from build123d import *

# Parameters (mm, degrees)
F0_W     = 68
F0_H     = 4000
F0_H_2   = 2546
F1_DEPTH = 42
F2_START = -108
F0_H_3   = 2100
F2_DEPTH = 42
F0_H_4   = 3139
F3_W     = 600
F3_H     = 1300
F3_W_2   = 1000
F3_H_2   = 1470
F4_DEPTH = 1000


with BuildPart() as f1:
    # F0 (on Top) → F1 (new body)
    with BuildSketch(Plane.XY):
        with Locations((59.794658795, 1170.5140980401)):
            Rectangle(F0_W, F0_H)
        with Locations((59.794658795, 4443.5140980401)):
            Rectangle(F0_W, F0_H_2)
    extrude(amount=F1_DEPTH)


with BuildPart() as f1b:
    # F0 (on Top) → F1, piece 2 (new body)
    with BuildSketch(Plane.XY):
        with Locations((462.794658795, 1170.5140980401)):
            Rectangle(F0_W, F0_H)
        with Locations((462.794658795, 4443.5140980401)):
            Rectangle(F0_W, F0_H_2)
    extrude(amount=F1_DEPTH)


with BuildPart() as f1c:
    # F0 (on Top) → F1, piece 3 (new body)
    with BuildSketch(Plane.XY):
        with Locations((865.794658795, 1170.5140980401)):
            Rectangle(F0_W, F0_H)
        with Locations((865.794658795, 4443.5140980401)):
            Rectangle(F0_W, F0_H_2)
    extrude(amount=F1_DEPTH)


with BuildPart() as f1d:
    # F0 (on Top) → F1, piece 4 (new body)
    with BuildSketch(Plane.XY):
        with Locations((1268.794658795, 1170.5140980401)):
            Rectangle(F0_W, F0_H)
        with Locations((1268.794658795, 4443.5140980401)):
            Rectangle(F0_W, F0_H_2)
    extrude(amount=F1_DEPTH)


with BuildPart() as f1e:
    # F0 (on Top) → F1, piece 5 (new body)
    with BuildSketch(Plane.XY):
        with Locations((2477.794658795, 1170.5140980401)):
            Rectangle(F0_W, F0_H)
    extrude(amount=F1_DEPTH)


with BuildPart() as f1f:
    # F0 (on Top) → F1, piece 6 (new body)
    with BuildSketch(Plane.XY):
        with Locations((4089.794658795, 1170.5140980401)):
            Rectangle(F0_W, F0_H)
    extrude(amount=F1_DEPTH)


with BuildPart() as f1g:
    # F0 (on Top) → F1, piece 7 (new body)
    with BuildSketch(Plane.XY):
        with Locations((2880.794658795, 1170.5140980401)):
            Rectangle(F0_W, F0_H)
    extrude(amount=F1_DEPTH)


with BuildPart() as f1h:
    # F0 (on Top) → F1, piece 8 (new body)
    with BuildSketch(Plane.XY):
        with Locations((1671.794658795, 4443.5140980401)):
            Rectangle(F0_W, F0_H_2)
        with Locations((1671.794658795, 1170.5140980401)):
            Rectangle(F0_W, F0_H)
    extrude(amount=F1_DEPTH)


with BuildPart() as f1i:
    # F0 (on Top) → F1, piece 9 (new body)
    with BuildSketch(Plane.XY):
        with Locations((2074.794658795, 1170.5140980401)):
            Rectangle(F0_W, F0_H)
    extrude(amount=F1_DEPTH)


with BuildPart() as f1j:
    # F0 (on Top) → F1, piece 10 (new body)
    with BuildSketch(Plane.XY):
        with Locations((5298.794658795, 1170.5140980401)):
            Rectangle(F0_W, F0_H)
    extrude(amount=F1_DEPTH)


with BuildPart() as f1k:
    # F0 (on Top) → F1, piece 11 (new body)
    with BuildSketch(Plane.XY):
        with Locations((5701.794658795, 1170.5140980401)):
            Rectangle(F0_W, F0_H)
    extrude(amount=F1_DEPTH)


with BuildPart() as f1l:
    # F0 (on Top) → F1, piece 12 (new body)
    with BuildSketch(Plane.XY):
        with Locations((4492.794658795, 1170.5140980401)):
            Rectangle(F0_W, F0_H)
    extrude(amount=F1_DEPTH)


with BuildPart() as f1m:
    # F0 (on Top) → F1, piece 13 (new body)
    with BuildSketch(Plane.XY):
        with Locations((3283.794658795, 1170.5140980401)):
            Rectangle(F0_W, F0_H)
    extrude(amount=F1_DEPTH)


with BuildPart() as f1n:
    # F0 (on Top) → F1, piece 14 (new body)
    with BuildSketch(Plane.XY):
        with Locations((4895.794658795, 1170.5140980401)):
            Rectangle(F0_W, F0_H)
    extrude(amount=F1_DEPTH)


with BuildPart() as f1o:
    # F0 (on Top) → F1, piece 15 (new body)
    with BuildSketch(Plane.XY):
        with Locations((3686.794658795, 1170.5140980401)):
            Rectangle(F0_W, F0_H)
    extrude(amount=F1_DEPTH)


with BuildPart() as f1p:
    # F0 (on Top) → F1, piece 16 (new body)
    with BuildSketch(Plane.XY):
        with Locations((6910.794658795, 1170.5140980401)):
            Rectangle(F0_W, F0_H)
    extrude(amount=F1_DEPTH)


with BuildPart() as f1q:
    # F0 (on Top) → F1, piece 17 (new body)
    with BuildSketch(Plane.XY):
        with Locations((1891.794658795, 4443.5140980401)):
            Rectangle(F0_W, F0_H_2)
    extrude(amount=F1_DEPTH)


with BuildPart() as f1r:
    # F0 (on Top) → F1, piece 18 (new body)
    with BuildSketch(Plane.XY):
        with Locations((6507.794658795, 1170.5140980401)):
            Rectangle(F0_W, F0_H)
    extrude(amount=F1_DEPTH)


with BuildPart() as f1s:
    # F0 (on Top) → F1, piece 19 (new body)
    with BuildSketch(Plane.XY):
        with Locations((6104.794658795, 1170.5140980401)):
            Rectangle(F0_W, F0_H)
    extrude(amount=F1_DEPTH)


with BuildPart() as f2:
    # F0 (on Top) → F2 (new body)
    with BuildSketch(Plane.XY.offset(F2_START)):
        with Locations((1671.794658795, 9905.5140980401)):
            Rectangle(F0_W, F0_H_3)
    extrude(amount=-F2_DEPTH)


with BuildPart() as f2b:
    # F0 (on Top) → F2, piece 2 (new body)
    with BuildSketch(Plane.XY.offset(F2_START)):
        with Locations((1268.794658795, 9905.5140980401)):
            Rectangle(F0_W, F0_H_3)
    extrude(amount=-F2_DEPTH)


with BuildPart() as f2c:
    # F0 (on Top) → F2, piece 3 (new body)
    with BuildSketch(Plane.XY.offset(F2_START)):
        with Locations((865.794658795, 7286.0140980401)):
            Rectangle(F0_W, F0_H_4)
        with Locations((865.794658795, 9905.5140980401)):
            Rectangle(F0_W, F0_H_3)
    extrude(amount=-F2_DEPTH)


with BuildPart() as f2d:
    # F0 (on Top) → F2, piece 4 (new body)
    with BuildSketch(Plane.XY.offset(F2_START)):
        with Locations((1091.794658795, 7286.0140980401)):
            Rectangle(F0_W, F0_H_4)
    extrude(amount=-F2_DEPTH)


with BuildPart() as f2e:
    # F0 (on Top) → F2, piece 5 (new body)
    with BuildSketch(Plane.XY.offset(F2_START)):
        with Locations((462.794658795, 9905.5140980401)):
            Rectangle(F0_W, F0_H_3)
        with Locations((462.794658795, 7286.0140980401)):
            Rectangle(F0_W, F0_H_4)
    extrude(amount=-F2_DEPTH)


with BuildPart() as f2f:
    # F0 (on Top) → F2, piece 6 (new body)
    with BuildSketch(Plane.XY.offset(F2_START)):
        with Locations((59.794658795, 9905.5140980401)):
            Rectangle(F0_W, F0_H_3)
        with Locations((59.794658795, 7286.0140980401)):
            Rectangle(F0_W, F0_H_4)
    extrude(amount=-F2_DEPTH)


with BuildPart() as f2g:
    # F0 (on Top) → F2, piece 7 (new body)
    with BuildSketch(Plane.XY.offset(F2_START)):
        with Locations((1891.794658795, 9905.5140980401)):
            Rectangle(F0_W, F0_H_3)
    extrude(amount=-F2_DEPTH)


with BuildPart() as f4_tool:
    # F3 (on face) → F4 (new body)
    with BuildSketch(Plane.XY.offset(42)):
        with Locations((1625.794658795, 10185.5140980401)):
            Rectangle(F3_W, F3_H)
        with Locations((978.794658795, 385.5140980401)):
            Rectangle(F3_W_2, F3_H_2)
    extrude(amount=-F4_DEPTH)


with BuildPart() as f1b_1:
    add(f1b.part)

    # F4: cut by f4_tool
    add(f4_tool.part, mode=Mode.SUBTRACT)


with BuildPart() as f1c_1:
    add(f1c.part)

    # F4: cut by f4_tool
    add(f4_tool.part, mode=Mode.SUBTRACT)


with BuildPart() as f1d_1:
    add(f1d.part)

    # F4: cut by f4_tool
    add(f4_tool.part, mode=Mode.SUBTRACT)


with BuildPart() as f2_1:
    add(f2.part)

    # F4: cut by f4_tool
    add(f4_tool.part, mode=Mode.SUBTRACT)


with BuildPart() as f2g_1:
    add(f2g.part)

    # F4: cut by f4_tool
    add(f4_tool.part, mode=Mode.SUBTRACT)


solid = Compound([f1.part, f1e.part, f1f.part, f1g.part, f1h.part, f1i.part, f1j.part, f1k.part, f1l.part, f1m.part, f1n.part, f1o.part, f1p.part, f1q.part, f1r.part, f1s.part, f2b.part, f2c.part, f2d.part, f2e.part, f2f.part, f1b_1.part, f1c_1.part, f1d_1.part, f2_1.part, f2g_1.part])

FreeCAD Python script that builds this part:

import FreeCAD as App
import Part
import Sketcher
Q = App.Units.Quantity


def add_polygon(sketch, points):
    """Adds a closed chain of lines whose ends are joined by coincident constraints."""
    first, n = sketch.GeometryCount, len(points)
    for a, b in zip(points, points[1:] + points[:1]):
        sketch.addGeometry(Part.LineSegment(App.Vector(*a, 0), App.Vector(*b, 0)), False)
    for i in range(n):
        sketch.addConstraint(Sketcher.Constraint("Coincident", first + i, 2, first + (i + 1) % n, 1))

doc = App.newDocument("Part")
body = doc.addObject("PartDesign::Body", "Body")

# Sketch on XY plane
sketch1 = doc.addObject("Sketcher::SketchObject", "Sketch")
body.addObject(sketch1)
sketch1.AttachmentSupport = (doc.XY_Plane, [""])
sketch1.MapMode = "FlatFace"
add_polygon(sketch1, [(26, -829), (94, -829), (94, 5717), (26, 5717)])  # lines 0-3
sketch1.addConstraint(Sketcher.Constraint("Horizontal", 0))
sketch1.addConstraint(Sketcher.Constraint("Vertical", 1))
sketch1.addConstraint(Sketcher.Constraint("Horizontal", 2))
sketch1.addConstraint(Sketcher.Constraint("Vertical", 3))
sketch1.addConstraint(Sketcher.Constraint("DistanceX", 0, 1, 0, 2, Q("68 mm")))
sketch1.addConstraint(Sketcher.Constraint("DistanceY", 1, 1, 1, 2, Q("6546 mm")))
sketch1.addConstraint(Sketcher.Constraint("DistanceY", 0, 2, -1, 1, Q("829.485902 mm")))
sketch1.addConstraint(Sketcher.Constraint("DistanceX", -1, 1, 0, 2, Q("93.794659 mm")))
pad1 = doc.addObject("PartDesign::Pad", "Pad")
body.addObject(pad1)
pad1.Profile = sketch1
pad1.Length = 42
body2 = doc.addObject("PartDesign::Body", "Body001")

# Sketch on XY plane
sketch2 = doc.addObject("Sketcher::SketchObject", "Sketch001")
body2.addObject(sketch2)
sketch2.AttachmentSupport = (doc.getObject("XY_Plane001"), [""])
sketch2.MapMode = "FlatFace"
add_polygon(sketch2, [(429, -829), (497, -829), (497, 5717), (429, 5717)])  # lines 0-3
sketch2.addConstraint(Sketcher.Constraint("Horizontal", 0))
sketch2.addConstraint(Sketcher.Constraint("Vertical", 1))
sketch2.addConstraint(Sketcher.Constraint("Horizontal", 2))
sketch2.addConstraint(Sketcher.Constraint("Vertical", 3))
sketch2.addConstraint(Sketcher.Constraint("DistanceX", 0, 1, 0, 2, Q("68 mm")))
sketch2.addConstraint(Sketcher.Constraint("DistanceY", 1, 1, 1, 2, Q("6546 mm")))
sketch2.addConstraint(Sketcher.Constraint("DistanceY", 0, 2, -1, 1, Q("829.485902 mm")))
sketch2.addConstraint(Sketcher.Constraint("DistanceX", -1, 1, 0, 2, Q("496.794659 mm")))
pad2 = doc.addObject("PartDesign::Pad", "Pad001")
body2.addObject(pad2)
pad2.Profile = sketch2
pad2.Length = 42
body3 = doc.addObject("PartDesign::Body", "Body002")

# Sketch on XY plane
sketch3 = doc.addObject("Sketcher::SketchObject", "Sketch002")
body3.addObject(sketch3)
sketch3.AttachmentSupport = (doc.getObject("XY_Plane002"), [""])
sketch3.MapMode = "FlatFace"
add_polygon(sketch3, [(832, -829), (900, -829), (900, 5717), (832, 5717)])  # lines 0-3
sketch3.addConstraint(Sketcher.Constraint("Horizontal", 0))
sketch3.addConstraint(Sketcher.Constraint("Vertical", 1))
sketch3.addConstraint(Sketcher.Constraint("Horizontal", 2))
sketch3.addConstraint(Sketcher.Constraint("Vertical", 3))
sketch3.addConstraint(Sketcher.Constraint("DistanceX", 0, 1, 0, 2, Q("68 mm")))
sketch3.addConstraint(Sketcher.Constraint("DistanceY", 1, 1, 1, 2, Q("6546 mm")))
sketch3.addConstraint(Sketcher.Constraint("DistanceY", 0, 2, -1, 1, Q("829.485902 mm")))
sketch3.addConstraint(Sketcher.Constraint("DistanceX", -1, 1, 0, 2, Q("899.794659 mm")))
pad3 = doc.addObject("PartDesign::Pad", "Pad002")
body3.addObject(pad3)
pad3.Profile = sketch3
pad3.Length = 42
body4 = doc.addObject("PartDesign::Body", "Body003")

# Sketch on XY plane
sketch4 = doc.addObject("Sketcher::SketchObject", "Sketch003")
body4.addObject(sketch4)
sketch4.AttachmentSupport = (doc.getObject("XY_Plane003"), [""])
sketch4.MapMode = "FlatFace"
add_polygon(sketch4, [(1235, -829), (1303, -829), (1303, 5717), (1235, 5717)])  # lines 0-3
sketch4.addConstraint(Sketcher.Constraint("Horizontal", 0))
sketch4.addConstraint(Sketcher.Constraint("Vertical", 1))
sketch4.addConstraint(Sketcher.Constraint("Horizontal", 2))
sketch4.addConstraint(Sketcher.Constraint("Vertical", 3))
sketch4.addConstraint(Sketcher.Constraint("DistanceX", 0, 1, 0, 2, Q("68 mm")))
sketch4.addConstraint(Sketcher.Constraint("DistanceY", 1, 1, 1, 2, Q("6546 mm")))
sketch4.addConstraint(Sketcher.Constraint("DistanceY", 0, 2, -1, 1, Q("829.485902 mm")))
sketch4.addConstraint(Sketcher.Constraint("DistanceX", -1, 1, 0, 2, Q("1302.794659 mm")))
pad4 = doc.addObject("PartDesign::Pad", "Pad003")
body4.addObject(pad4)
pad4.Profile = sketch4
pad4.Length = 42
body5 = doc.addObject("PartDesign::Body", "Body004")

# Sketch on XY plane
sketch5 = doc.addObject("Sketcher::SketchObject", "Sketch004")
body5.addObject(sketch5)
sketch5.AttachmentSupport = (doc.getObject("XY_Plane004"), [""])
sketch5.MapMode = "FlatFace"
add_polygon(sketch5, [(2444, 3171), (2444, -829), (2512, -829), (2512, 3171)])  # lines 0-3
sketch5.addConstraint(Sketcher.Constraint("Vertical", 0))
sketch5.addConstraint(Sketcher.Constraint("Horizontal", 1))
sketch5.addConstraint(Sketcher.Constraint("Vertical", 2))
sketch5.addConstraint(Sketcher.Constraint("Horizontal", 3))
sketch5.addConstraint(Sketcher.Constraint("DistanceX", 1, 1, 1, 2, Q("68 mm")))
sketch5.addConstraint(Sketcher.Constraint("DistanceY", 0, 2, 0, 1, Q("4000 mm")))
sketch5.addConstraint(Sketcher.Constraint("DistanceY", 0, 2, -1, 1, Q("829.485902 mm")))
sketch5.addConstraint(Sketcher.Constraint("DistanceX", -1, 1, 0, 2, Q("2443.794659 mm")))
pad5 = doc.addObject("PartDesign::Pad", "Pad004")
body5.addObject(pad5)
pad5.Profile = sketch5
pad5.Length = 42
body6 = doc.addObject("PartDesign::Body", "Body005")

# Sketch on XY plane
sketch6 = doc.addObject("Sketcher::SketchObject", "Sketch005")
body6.addObject(sketch6)
sketch6.AttachmentSupport = (doc.getObject("XY_Plane005"), [""])
sketch6.MapMode = "FlatFace"
add_polygon(sketch6, [(4056, 3171), (4056, -829), (4124, -829), (4124, 3171)])  # lines 0-3
sketch6.addConstraint(Sketcher.Constraint("Vertical", 0))
sketch6.addConstraint(Sketcher.Constraint("Horizontal", 1))
sketch6.addConstraint(Sketcher.Constraint("Vertical", 2))
sketch6.addConstraint(Sketcher.Constraint("Horizontal", 3))
sketch6.addConstraint(Sketcher.Constraint("DistanceX", 1, 1, 1, 2, Q("68 mm")))
sketch6.addConstraint(Sketcher.Constraint("DistanceY", 0, 2, 0, 1, Q("4000 mm")))
sketch6.addConstraint(Sketcher.Constraint("DistanceY", 0, 2, -1, 1, Q("829.485902 mm")))
sketch6.addConstraint(Sketcher.Constraint("DistanceX", -1, 1, 0, 2, Q("4055.794659 mm")))
pad6 = doc.addObject("PartDesign::Pad", "Pad005")
body6.addObject(pad6)
pad6.Profile = sketch6
pad6.Length = 42
body7 = doc.addObject("PartDesign::Body", "Body006")

# Sketch on XY plane
sketch7 = doc.addObject("Sketcher::SketchObject", "Sketch006")
body7.addObject(sketch7)
sketch7.AttachmentSupport = (doc.getObject("XY_Plane006"), [""])
sketch7.MapMode = "FlatFace"
add_polygon(sketch7, [(2847, 3171), (2847, -829), (2915, -829), (2915, 3171)])  # lines 0-3
sketch7.addConstraint(Sketcher.Constraint("Vertical", 0))
sketch7.addConstraint(Sketcher.Constraint("Horizontal", 1))
sketch7.addConstraint(Sketcher.Constraint("Vertical", 2))
sketch7.addConstraint(Sketcher.Constraint("Horizontal", 3))
sketch7.addConstraint(Sketcher.Constraint("DistanceX", 1, 1, 1, 2, Q("68 mm")))
sketch7.addConstraint(Sketcher.Constraint("DistanceY", 0, 2, 0, 1, Q("4000 mm")))
sketch7.addConstraint(Sketcher.Constraint("DistanceY", 0, 2, -1, 1, Q("829.485902 mm")))
sketch7.addConstraint(Sketcher.Constraint("DistanceX", -1, 1, 0, 2, Q("2846.794659 mm")))
pad7 = doc.addObject("PartDesign::Pad", "Pad006")
body7.addObject(pad7)
pad7.Profile = sketch7
pad7.Length = 42
body8 = doc.addObject("PartDesign::Body", "Body007")

# Sketch on XY plane
sketch8 = doc.addObject("Sketcher::SketchObject", "Sketch007")
body8.addObject(sketch8)
sketch8.AttachmentSupport = (doc.getObject("XY_Plane007"), [""])
sketch8.MapMode = "FlatFace"
add_polygon(sketch8, [(1638, 5717), (1638, -829), (1706, -829), (1706, 5717)])  # lines 0-3
sketch8.addConstraint(Sketcher.Constraint("Vertical", 0))
sketch8.addConstraint(Sketcher.Constraint("Horizontal", 1))
sketch8.addConstraint(Sketcher.Constraint("Vertical", 2))
sketch8.addConstraint(Sketcher.Constraint("Horizontal", 3))
sketch8.addConstraint(Sketcher.Constraint("DistanceX", 1, 1, 1, 2, Q("68 mm")))
sketch8.addConstraint(Sketcher.Constraint("DistanceY", 0, 2, 0, 1, Q("6546 mm")))
sketch8.addConstraint(Sketcher.Constraint("DistanceY", 0, 2, -1, 1, Q("829.485902 mm")))
sketch8.addConstraint(Sketcher.Constraint("DistanceX", -1, 1, 0, 2, Q("1637.794659 mm")))
pad8 = doc.addObject("PartDesign::Pad", "Pad007")
body8.addObject(pad8)
pad8.Profile = sketch8
pad8.Length = 42
body9 = doc.addObject("PartDesign::Body", "Body008")

# Sketch on XY plane
sketch9 = doc.addObject("Sketcher::SketchObject", "Sketch008")
body9.addObject(sketch9)
sketch9.AttachmentSupport = (doc.getObject("XY_Plane008"), [""])
sketch9.MapMode = "FlatFace"
add_polygon(sketch9, [(2041, 3171), (2041, -829), (2109, -829), (2109, 3171)])  # lines 0-3
sketch9.addConstraint(Sketcher.Constraint("Vertical", 0))
sketch9.addConstraint(Sketcher.Constraint("Horizontal", 1))
sketch9.addConstraint(Sketcher.Constraint("Vertical", 2))
sketch9.addConstraint(Sketcher.Constraint("Horizontal", 3))
sketch9.addConstraint(Sketcher.Constraint("DistanceX", 1, 1, 1, 2, Q("68 mm")))
sketch9.addConstraint(Sketcher.Constraint("DistanceY", 0, 2, 0, 1, Q("4000 mm")))
sketch9.addConstraint(Sketcher.Constraint("DistanceY", 0, 2, -1, 1, Q("829.485902 mm")))
sketch9.addConstraint(Sketcher.Constraint("DistanceX", -1, 1, 0, 2, Q("2040.794659 mm")))
pad9 = doc.addObject("PartDesign::Pad", "Pad008")
body9.addObject(pad9)
pad9.Profile = sketch9
pad9.Length = 42
body10 = doc.addObject("PartDesign::Body", "Body009")

# Sketch on XY plane
sketch10 = doc.addObject("Sketcher::SketchObject", "Sketch009")
body10.addObject(sketch10)
sketch10.AttachmentSupport = (doc.getObject("XY_Plane009"), [""])
sketch10.MapMode = "FlatFace"
add_polygon(sketch10, [(5265, 3171), (5265, -829), (5333, -829), (5333, 3171)])  # lines 0-3
sketch10.addConstraint(Sketcher.Constraint("Vertical", 0))
sketch10.addConstraint(Sketcher.Constraint("Horizontal", 1))
sketch10.addConstraint(Sketcher.Constraint("Vertical", 2))
sketch10.addConstraint(Sketcher.Constraint("Horizontal", 3))
sketch10.addConstraint(Sketcher.Constraint("DistanceX", 1, 1, 1, 2, Q("68 mm")))
sketch10.addConstraint(Sketcher.Constraint("DistanceY", 0, 2, 0, 1, Q("4000 mm")))
sketch10.addConstraint(Sketcher.Constraint("DistanceY", 0, 2, -1, 1, Q("829.485902 mm")))
sketch10.addConstraint(Sketcher.Constraint("DistanceX", -1, 1, 0, 2, Q("5264.794659 mm")))
pad10 = doc.addObject("PartDesign::Pad", "Pad009")
body10.addObject(pad10)
pad10.Profile = sketch10
pad10.Length = 42
body11 = doc.addObject("PartDesign::Body", "Body010")

# Sketch on XY plane
sketch11 = doc.addObject("Sketcher::SketchObject", "Sketch010")
body11.addObject(sketch11)
sketch11.AttachmentSupport = (doc.getObject("XY_Plane010"), [""])
sketch11.MapMode = "FlatFace"
add_polygon(sketch11, [(5668, 3171), (5668, -829), (5736, -829), (5736, 3171)])  # lines 0-3
sketch11.addConstraint(Sketcher.Constraint("Vertical", 0))
sketch11.addConstraint(Sketcher.Constraint("Horizontal", 1))
sketch11.addConstraint(Sketcher.Constraint("Vertical", 2))
sketch11.addConstraint(Sketcher.Constraint("Horizontal", 3))
sketch11.addConstraint(Sketcher.Constraint("DistanceX", 1, 1, 1, 2, Q("68 mm")))
sketch11.addConstraint(Sketcher.Constraint("DistanceY", 0, 2, 0, 1, Q("4000 mm")))
sketch11.addConstraint(Sketcher.Constraint("DistanceY", 0, 2, -1, 1, Q("829.485902 mm")))
sketch11.addConstraint(Sketcher.Constraint("DistanceX", -1, 1, 0, 2, Q("5667.794659 mm")))
pad11 = doc.addObject("PartDesign::Pad", "Pad010")
body11.addObject(pad11)
pad11.Profile = sketch11
pad11.Length = 42
body12 = doc.addObject("PartDesign::Body", "Body011")

# Sketch on XY plane
sketch12 = doc.addObject("Sketcher::SketchObject", "Sketch011")
body12.addObject(sketch12)
sketch12.AttachmentSupport = (doc.getObject("XY_Plane011"), [""])
sketch12.MapMode = "FlatFace"
add_polygon(sketch12, [(4459, 3171), (4459, -829), (4527, -829), (4527, 3171)])  # lines 0-3
sketch12.addConstraint(Sketcher.Constraint("Vertical", 0))
sketch12.addConstraint(Sketcher.Constraint("Horizontal", 1))
sketch12.addConstraint(Sketcher.Constraint("Vertical", 2))
sketch12.addConstraint(Sketcher.Constraint("Horizontal", 3))
sketch12.addConstraint(Sketcher.Constraint("DistanceX", 1, 1, 1, 2, Q("68 mm")))
sketch12.addConstraint(Sketcher.Constraint("DistanceY", 0, 2, 0, 1, Q("4000 mm")))
sketch12.addConstraint(Sketcher.Constraint("DistanceY", 0, 2, -1, 1, Q("829.485902 mm")))
sketch12.addConstraint(Sketcher.Constraint("DistanceX", -1, 1, 0, 2, Q("4458.794659 mm")))
pad12 = doc.addObject("PartDesign::Pad", "Pad011")
body12.addObject(pad12)
pad12.Profile = sketch12
pad12.Length = 42
body13 = doc.addObject("PartDesign::Body", "Body012")

# Sketch on XY plane
sketch13 = doc.addObject("Sketcher::SketchObject", "Sketch012")
body13.addObject(sketch13)
sketch13.AttachmentSupport = (doc.getObject("XY_Plane012"), [""])
sketch13.MapMode = "FlatFace"
add_polygon(sketch13, [(3250, 3171), (3250, -829), (3318, -829), (3318, 3171)])  # lines 0-3
sketch13.addConstraint(Sketcher.Constraint("Vertical", 0))
sketch13.addConstraint(Sketcher.Constraint("Horizontal", 1))
sketch13.addConstraint(Sketcher.Constraint("Vertical", 2))
sketch13.addConstraint(Sketcher.Constraint("Horizontal", 3))
sketch13.addConstraint(Sketcher.Constraint("DistanceX", 1, 1, 1, 2, Q("68 mm")))
sketch13.addConstraint(Sketcher.Constraint("DistanceY", 0, 2, 0, 1, Q("4000 mm")))
sketch13.addConstraint(Sketcher.Constraint("DistanceY", 0, 2, -1, 1, Q("829.485902 mm")))
sketch13.addConstraint(Sketcher.Constraint("DistanceX", -1, 1, 0, 2, Q("3249.794659 mm")))
pad13 = doc.addObject("PartDesign::Pad", "Pad012")
body13.addObject(pad13)
pad13.Profile = sketch13
pad13.Length = 42
body14 = doc.addObject("PartDesign::Body", "Body013")

# Sketch on XY plane
sketch14 = doc.addObject("Sketcher::SketchObject", "Sketch013")
body14.addObject(sketch14)
sketch14.AttachmentSupport = (doc.getObject("XY_Plane013"), [""])
sketch14.MapMode = "FlatFace"
add_polygon(sketch14, [(4862, 3171), (4862, -829), (4930, -829), (4930, 3171)])  # lines 0-3
sketch14.addConstraint(Sketcher.Constraint("Vertical", 0))
sketch14.addConstraint(Sketcher.Constraint("Horizontal", 1))
sketch14.addConstraint(Sketcher.Constraint("Vertical", 2))
sketch14.addConstraint(Sketcher.Constraint("Horizontal", 3))
sketch14.addConstraint(Sketcher.Constraint("DistanceX", 1, 1, 1, 2, Q("68 mm")))
sketch14.addConstraint(Sketcher.Constraint("DistanceY", 0, 2, 0, 1, Q("4000 mm")))
sketch14.addConstraint(Sketcher.Constraint("DistanceY", 0, 2, -1, 1, Q("829.485902 mm")))
sketch14.addConstraint(Sketcher.Constraint("DistanceX", -1, 1, 0, 2, Q("4861.794659 mm")))
pad14 = doc.addObject("PartDesign::Pad", "Pad013")
body14.addObject(pad14)
pad14.Profile = sketch14
pad14.Length = 42
body15 = doc.addObject("PartDesign::Body", "Body014")

# Sketch on XY plane
sketch15 = doc.addObject("Sketcher::SketchObject", "Sketch014")
body15.addObject(sketch15)
sketch15.AttachmentSupport = (doc.getObject("XY_Plane014"), [""])
sketch15.MapMode = "FlatFace"
add_polygon(sketch15, [(3653, 3171), (3653, -829), (3721, -829), (3721, 3171)])  # lines 0-3
sketch15.addConstraint(Sketcher.Constraint("Vertical", 0))
sketch15.addConstraint(Sketcher.Constraint("Horizontal", 1))
sketch15.addConstraint(Sketcher.Constraint("Vertical", 2))
sketch15.addConstraint(Sketcher.Constraint("Horizontal", 3))
sketch15.addConstraint(Sketcher.Constraint("DistanceX", 1, 1, 1, 2, Q("68 mm")))
sketch15.addConstraint(Sketcher.Constraint("DistanceY", 0, 2, 0, 1, Q("4000 mm")))
sketch15.addConstraint(Sketcher.Constraint("DistanceY", 0, 2, -1, 1, Q("829.485902 mm")))
sketch15.addConstraint(Sketcher.Constraint("DistanceX", -1, 1, 0, 2, Q("3652.794659 mm")))
pad15 = doc.addObject("PartDesign::Pad", "Pad014")
body15.addObject(pad15)
pad15.Profile = sketch15
pad15.Length = 42
body16 = doc.addObject("PartDesign::Body", "Body015")

# Sketch on XY plane
sketch16 = doc.addObject("Sketcher::SketchObject", "Sketch015")
body16.addObject(sketch16)
sketch16.AttachmentSupport = (doc.getObject("XY_Plane015"), [""])
sketch16.MapMode = "FlatFace"
add_polygon(sketch16, [(6877, 3171), (6877, -829), (6945, -829), (6945, 3171)])  # lines 0-3
sketch16.addConstraint(Sketcher.Constraint("Vertical", 0))
sketch16.addConstraint(Sketcher.Constraint("Horizontal", 1))
sketch16.addConstraint(Sketcher.Constraint("Vertical", 2))
sketch16.addConstraint(Sketcher.Constraint("Horizontal", 3))
sketch16.addConstraint(Sketcher.Constraint("DistanceX", 1, 1, 1, 2, Q("68 mm")))
sketch16.addConstraint(Sketcher.Constraint("DistanceY", 0, 2, 0, 1, Q("4000 mm")))
sketch16.addConstraint(Sketcher.Constraint("DistanceY", 0, 2, -1, 1, Q("829.485902 mm")))
sketch16.addConstraint(Sketcher.Constraint("DistanceX", -1, 1, 0, 2, Q("6876.794659 mm")))
pad16 = doc.addObject("PartDesign::Pad", "Pad015")
body16.addObject(pad16)
pad16.Profile = sketch16
pad16.Length = 42
body17 = doc.addObject("PartDesign::Body", "Body016")

# Sketch on XY plane
sketch17 = doc.addObject("Sketcher::SketchObject", "Sketch016")
body17.addObject(sketch17)
sketch17.AttachmentSupport = (doc.getObject("XY_Plane016"), [""])
sketch17.MapMode = "FlatFace"
add_polygon(sketch17, [(1858, 5717), (1858, 3171), (1926, 3171), (1926, 5717)])  # lines 0-3
sketch17.addConstraint(Sketcher.Constraint("Vertical", 0))
sketch17.addConstraint(Sketcher.Constraint("Horizontal", 1))
sketch17.addConstraint(Sketcher.Constraint("Vertical", 2))
sketch17.addConstraint(Sketcher.Constraint("Horizontal", 3))
sketch17.addConstraint(Sketcher.Constraint("DistanceX", 1, 1, 1, 2, Q("68 mm")))
sketch17.addConstraint(Sketcher.Constraint("DistanceY", 0, 2, 0, 1, Q("2546 mm")))
sketch17.addConstraint(Sketcher.Constraint("DistanceY", -1, 1, 0, 2, Q("3170.514098 mm")))
sketch17.addConstraint(Sketcher.Constraint("DistanceX", -1, 1, 0, 2, Q("1857.794659 mm")))
pad17 = doc.addObject("PartDesign::Pad", "Pad016")
body17.addObject(pad17)
pad17.Profile = sketch17
pad17.Length = 42
body18 = doc.addObject("PartDesign::Body", "Body017")

# Sketch on XY plane
sketch18 = doc.addObject("Sketcher::SketchObject", "Sketch017")
body18.addObject(sketch18)
sketch18.AttachmentSupport = (doc.getObject("XY_Plane017"), [""])
sketch18.MapMode = "FlatFace"
add_polygon(sketch18, [(6474, 3171), (6474, -829), (6542, -829), (6542, 3171)])  # lines 0-3
sketch18.addConstraint(Sketcher.Constraint("Vertical", 0))
sketch18.addConstraint(Sketcher.Constraint("Horizontal", 1))
sketch18.addConstraint(Sketcher.Constraint("Vertical", 2))
sketch18.addConstraint(Sketcher.Constraint("Horizontal", 3))
sketch18.addConstraint(Sketcher.Constraint("DistanceX", 1, 1, 1, 2, Q("68 mm")))
sketch18.addConstraint(Sketcher.Constraint("DistanceY", 0, 2, 0, 1, Q("4000 mm")))
sketch18.addConstraint(Sketcher.Constraint("DistanceY", 0, 2, -1, 1, Q("829.485902 mm")))
sketch18.addConstraint(Sketcher.Constraint("DistanceX", -1, 1, 0, 2, Q("6473.794659 mm")))
pad18 = doc.addObject("PartDesign::Pad", "Pad017")
body18.addObject(pad18)
pad18.Profile = sketch18
pad18.Length = 42
body19 = doc.addObject("PartDesign::Body", "Body018")

# Sketch on XY plane
sketch19 = doc.addObject("Sketcher::SketchObject", "Sketch018")
body19.addObject(sketch19)
sketch19.AttachmentSupport = (doc.getObject("XY_Plane018"), [""])
sketch19.MapMode = "FlatFace"
add_polygon(sketch19, [(6071, 3171), (6071, -829), (6139, -829), (6139, 3171)])  # lines 0-3
sketch19.addConstraint(Sketcher.Constraint("Vertical", 0))
sketch19.addConstraint(Sketcher.Constraint("Horizontal", 1))
sketch19.addConstraint(Sketcher.Constraint("Vertical", 2))
sketch19.addConstraint(Sketcher.Constraint("Horizontal", 3))
sketch19.addConstraint(Sketcher.Constraint("DistanceX", 1, 1, 1, 2, Q("68 mm")))
sketch19.addConstraint(Sketcher.Constraint("DistanceY", 0, 2, 0, 1, Q("4000 mm")))
sketch19.addConstraint(Sketcher.Constraint("DistanceY", 0, 2, -1, 1, Q("829.485902 mm")))
sketch19.addConstraint(Sketcher.Constraint("DistanceX", -1, 1, 0, 2, Q("6070.794659 mm")))
pad19 = doc.addObject("PartDesign::Pad", "Pad018")
body19.addObject(pad19)
pad19.Profile = sketch19
pad19.Length = 42
body20 = doc.addObject("PartDesign::Body", "Body019")

# Sketch on XY plane
sketch20 = doc.addObject("Sketcher::SketchObject", "Sketch019")
body20.addObject(sketch20)
sketch20.AttachmentSupport = (doc.getObject("XY_Plane019"), [""])
sketch20.MapMode = "FlatFace"
sketch20.AttachmentOffset = App.Placement(App.Vector(0, 0, -108), App.Rotation())
add_polygon(sketch20, [(1638, 10956), (1638, 8856), (1706, 8856), (1706, 10956)])  # lines 0-3
sketch20.addConstraint(Sketcher.Constraint("Vertical", 0))
sketch20.addConstraint(Sketcher.Constraint("Horizontal", 1))
sketch20.addConstraint(Sketcher.Constraint("Vertical", 2))
sketch20.addConstraint(Sketcher.Constraint("Horizontal", 3))
sketch20.addConstraint(Sketcher.Constraint("DistanceX", 1, 1, 1, 2, Q("68 mm")))
sketch20.addConstraint(Sketcher.Constraint("DistanceY", 0, 2, 0, 1, Q("2100 mm")))
sketch20.addConstraint(Sketcher.Constraint("DistanceY", -1, 1, 0, 2, Q("8855.514098 mm")))
sketch20.addConstraint(Sketcher.Constraint("DistanceX", -1, 1, 0, 2, Q("1637.794659 mm")))
pad20 = doc.addObject("PartDesign::Pad", "Pad019")
body20.addObject(pad20)
pad20.Profile = sketch20
pad20.Length = 42
pad20.Reversed = True
body21 = doc.addObject("PartDesign::Body", "Body020")

# Sketch on XY plane
sketch21 = doc.addObject("Sketcher::SketchObject", "Sketch020")
body21.addObject(sketch21)
sketch21.AttachmentSupport = (doc.getObject("XY_Plane020"), [""])
sketch21.MapMode = "FlatFace"
sketch21.AttachmentOffset = App.Placement(App.Vector(0, 0, -108), App.Rotation())
add_polygon(sketch21, [(1235, 10956), (1235, 8856), (1303, 8856), (1303, 10956)])  # lines 0-3
sketch21.addConstraint(Sketcher.Constraint("Vertical", 0))
sketch21.addConstraint(Sketcher.Constraint("Horizontal", 1))
sketch21.addConstraint(Sketcher.Constraint("Vertical", 2))
sketch21.addConstraint(Sketcher.Constraint("Horizontal", 3))
sketch21.addConstraint(Sketcher.Constraint("DistanceX", 1, 1, 1, 2, Q("68 mm")))
sketch21.addConstraint(Sketcher.Constraint("DistanceY", 0, 2, 0, 1, Q("2100 mm")))
sketch21.addConstraint(Sketcher.Constraint("DistanceY", -1, 1, 0, 2, Q("8855.514098 mm")))
sketch21.addConstraint(Sketcher.Constraint("DistanceX", -1, 1, 0, 2, Q("1234.794659 mm")))
pad21 = doc.addObject("PartDesign::Pad", "Pad020")
body21.addObject(pad21)
pad21.Profile = sketch21
pad21.Length = 42
pad21.Reversed = True
body22 = doc.addObject("PartDesign::Body", "Body021")

# Sketch on XY plane
sketch22 = doc.addObject("Sketcher::SketchObject", "Sketch021")
body22.addObject(sketch22)
sketch22.AttachmentSupport = (doc.getObject("XY_Plane021"), [""])
sketch22.MapMode = "FlatFace"
sketch22.AttachmentOffset = App.Placement(App.Vector(0, 0, -108), App.Rotation())
add_polygon(sketch22, [(832, 5717), (900, 5717), (900, 10956), (832, 10956)])  # lines 0-3
sketch22.addConstraint(Sketcher.Constraint("Horizontal", 0))
sketch22.addConstraint(Sketcher.Constraint("Vertical", 1))
sketch22.addConstraint(Sketcher.Constraint("Horizontal", 2))
sketch22.addConstraint(Sketcher.Constraint("Vertical", 3))
sketch22.addConstraint(Sketcher.Constraint("DistanceX", 0, 1, 0, 2, Q("68 mm")))
sketch22.addConstraint(Sketcher.Constraint("DistanceY", 1, 1, 1, 2, Q("5239 mm")))
sketch22.addConstraint(Sketcher.Constraint("DistanceY", -1, 1, 0, 2, Q("5716.514098 mm")))
sketch22.addConstraint(Sketcher.Constraint("DistanceX", -1, 1, 0, 2, Q("899.794659 mm")))
pad22 = doc.addObject("PartDesign::Pad", "Pad021")
body22.addObject(pad22)
pad22.Profile = sketch22
pad22.Length = 42
pad22.Reversed = True
body23 = doc.addObject("PartDesign::Body", "Body022")

# Sketch on XY plane
sketch23 = doc.addObject("Sketcher::SketchObject", "Sketch022")
body23.addObject(sketch23)
sketch23.AttachmentSupport = (doc.getObject("XY_Plane022"), [""])
sketch23.MapMode = "FlatFace"
sketch23.AttachmentOffset = App.Placement(App.Vector(0, 0, -108), App.Rotation())
add_polygon(sketch23, [(1058, 8856), (1058, 5717), (1126, 5717), (1126, 8856)])  # lines 0-3
sketch23.addConstraint(Sketcher.Constraint("Vertical", 0))
sketch23.addConstraint(Sketcher.Constraint("Horizontal", 1))
sketch23.addConstraint(Sketcher.Constraint("Vertical", 2))
sketch23.addConstraint(Sketcher.Constraint("Horizontal", 3))
sketch23.addConstraint(Sketcher.Constraint("DistanceX", 1, 1, 1, 2, Q("68 mm")))
sketch23.addConstraint(Sketcher.Constraint("DistanceY", 0, 2, 0, 1, Q("3139 mm")))
sketch23.addConstraint(Sketcher.Constraint("DistanceY", -1, 1, 0, 2, Q("5716.514098 mm")))
sketch23.addConstraint(Sketcher.Constraint("DistanceX", -1, 1, 0, 2, Q("1057.794659 mm")))
pad23 = doc.addObject("PartDesign::Pad", "Pad022")
body23.addObject(pad23)
pad23.Profile = sketch23
pad23.Length = 42
pad23.Reversed = True
body24 = doc.addObject("PartDesign::Body", "Body023")

# Sketch on XY plane
sketch24 = doc.addObject("Sketcher::SketchObject", "Sketch023")
body24.addObject(sketch24)
sketch24.AttachmentSupport = (doc.getObject("XY_Plane023"), [""])
sketch24.MapMode = "FlatFace"
sketch24.AttachmentOffset = App.Placement(App.Vector(0, 0, -108), App.Rotation())
add_polygon(sketch24, [(429, 10956), (429, 5717), (497, 5717), (497, 10956)])  # lines 0-3
sketch24.addConstraint(Sketcher.Constraint("Vertical", 0))
sketch24.addConstraint(Sketcher.Constraint("Horizontal", 1))
sketch24.addConstraint(Sketcher.Constraint("Vertical", 2))
sketch24.addConstraint(Sketcher.Constraint("Horizontal", 3))
sketch24.addConstraint(Sketcher.Constraint("DistanceX", 1, 1, 1, 2, Q("68 mm")))
sketch24.addConstraint(Sketcher.Constraint("DistanceY", 0, 2, 0, 1, Q("5239 mm")))
sketch24.addConstraint(Sketcher.Constraint("DistanceY", -1, 1, 0, 2, Q("5716.514098 mm")))
sketch24.addConstraint(Sketcher.Constraint("DistanceX", -1, 1, 0, 2, Q("428.794659 mm")))
pad24 = doc.addObject("PartDesign::Pad", "Pad023")
body24.addObject(pad24)
pad24.Profile = sketch24
pad24.Length = 42
pad24.Reversed = True
body25 = doc.addObject("PartDesign::Body", "Body024")

# Sketch on XY plane
sketch25 = doc.addObject("Sketcher::SketchObject", "Sketch024")
body25.addObject(sketch25)
sketch25.AttachmentSupport = (doc.getObject("XY_Plane024"), [""])
sketch25.MapMode = "FlatFace"
sketch25.AttachmentOffset = App.Placement(App.Vector(0, 0, -108), App.Rotation())
add_polygon(sketch25, [(26, 10956), (26, 5717), (94, 5717), (94, 10956)])  # lines 0-3
sketch25.addConstraint(Sketcher.Constraint("Vertical", 0))
sketch25.addConstraint(Sketcher.Constraint("Horizontal", 1))
sketch25.addConstraint(Sketcher.Constraint("Vertical", 2))
sketch25.addConstraint(Sketcher.Constraint("Horizontal", 3))
sketch25.addConstraint(Sketcher.Constraint("DistanceX", 1, 1, 1, 2, Q("68 mm")))
sketch25.addConstraint(Sketcher.Constraint("DistanceY", 0, 2, 0, 1, Q("5239 mm")))
sketch25.addConstraint(Sketcher.Constraint("DistanceY", -1, 1, 0, 2, Q("5716.514098 mm")))
sketch25.addConstraint(Sketcher.Constraint("DistanceX", -1, 1, 0, 2, Q("25.794659 mm")))
pad25 = doc.addObject("PartDesign::Pad", "Pad024")
body25.addObject(pad25)
pad25.Profile = sketch25
pad25.Length = 42
pad25.Reversed = True
body26 = doc.addObject("PartDesign::Body", "Body025")

# Sketch on XY plane
sketch26 = doc.addObject("Sketcher::SketchObject", "Sketch025")
body26.addObject(sketch26)
sketch26.AttachmentSupport = (doc.getObject("XY_Plane025"), [""])
sketch26.MapMode = "FlatFace"
sketch26.AttachmentOffset = App.Placement(App.Vector(0, 0, -108), App.Rotation())
add_polygon(sketch26, [(1858, 10956), (1858, 8856), (1926, 8856), (1926, 10956)])  # lines 0-3
sketch26.addConstraint(Sketcher.Constraint("Vertical", 0))
sketch26.addConstraint(Sketcher.Constraint("Horizontal", 1))
sketch26.addConstraint(Sketcher.Constraint("Vertical", 2))
sketch26.addConstraint(Sketcher.Constraint("Horizontal", 3))
sketch26.addConstraint(Sketcher.Constraint("DistanceX", 1, 1, 1, 2, Q("68 mm")))
sketch26.addConstraint(Sketcher.Constraint("DistanceY", 0, 2, 0, 1, Q("2100 mm")))
sketch26.addConstraint(Sketcher.Constraint("DistanceY", -1, 1, 0, 2, Q("8855.514098 mm")))
sketch26.addConstraint(Sketcher.Constraint("DistanceX", -1, 1, 0, 2, Q("1857.794659 mm")))
pad26 = doc.addObject("PartDesign::Pad", "Pad025")
body26.addObject(pad26)
pad26.Profile = sketch26
pad26.Length = 42
pad26.Reversed = True
body27 = doc.addObject("PartDesign::Body", "Body026")
body27.AllowCompound = True

# Sketch on XY plane
sketch27 = doc.addObject("Sketcher::SketchObject", "Sketch026")
body27.addObject(sketch27)
sketch27.AttachmentSupport = (doc.getObject("XY_Plane026"), [""])
sketch27.MapMode = "FlatFace"
sketch27.AttachmentOffset = App.Placement(App.Vector(0, 0, 42), App.Rotation())
add_polygon(sketch27, [(1326, 10836), (1326, 9536), (1926, 9536), (1926, 10836)])  # lines 0-3
add_polygon(sketch27, [(479, 1121), (479, -349), (1479, -349), (1479, 1121)])  # lines 4-7
sketch27.addConstraint(Sketcher.Constraint("Vertical", 0))
sketch27.addConstraint(Sketcher.Constraint("Horizontal", 1))
sketch27.addConstraint(Sketcher.Constraint("Vertical", 2))
sketch27.addConstraint(Sketcher.Constraint("Horizontal", 3))
sketch27.addConstraint(Sketcher.Constraint("Vertical", 4))
sketch27.addConstraint(Sketcher.Constraint("Horizontal", 5))
sketch27.addConstraint(Sketcher.Constraint("Vertical", 6))
sketch27.addConstraint(Sketcher.Constraint("Horizontal", 7))
sketch27.addConstraint(Sketcher.Constraint("DistanceX", 1, 1, 1, 2, Q("600 mm")))
sketch27.addConstraint(Sketcher.Constraint("DistanceX", 5, 1, 5, 2, Q("1000 mm")))
sketch27.addConstraint(Sketcher.Constraint("DistanceY", 0, 2, 0, 1, Q("1300 mm")))
sketch27.addConstraint(Sketcher.Constraint("DistanceY", 4, 2, 4, 1, Q("1470 mm")))
sketch27.addConstraint(Sketcher.Constraint("DistanceX", 4, 2, 0, 2, Q("847 mm")))
sketch27.addConstraint(Sketcher.Constraint("DistanceY", 4, 2, 0, 2, Q("9885 mm")))
sketch27.addConstraint(Sketcher.Constraint("DistanceY", -1, 1, 0, 2, Q("9535.514098 mm")))
sketch27.addConstraint(Sketcher.Constraint("DistanceX", -1, 1, 0, 2, Q("1325.794659 mm")))
pad27 = doc.addObject("PartDesign::Pad", "Pad026")
body27.addObject(pad27)
pad27.Profile = sketch27
pad27.Length = 1000
pad27.Reversed = True
doc.recompute()

body28 = doc.addObject("PartDesign::Body", "Body027")
body28.BaseFeature = body27
boolean = doc.addObject("PartDesign::Boolean", "Boolean")
body2.addObject(boolean)
boolean.Type = "Cut"
boolean.addObjects([body28])
doc.recompute()
body3.AllowCompound = True
doc.recompute()

body29 = doc.addObject("PartDesign::Body", "Body028")
body29.BaseFeature = body27
boolean2 = doc.addObject("PartDesign::Boolean", "Boolean001")
body3.addObject(boolean2)
boolean2.Type = "Cut"
boolean2.addObjects([body29])
doc.recompute()
body4.AllowCompound = True
doc.recompute()

body30 = doc.addObject("PartDesign::Body", "Body029")
body30.BaseFeature = body27
boolean3 = doc.addObject("PartDesign::Boolean", "Boolean002")
body4.addObject(boolean3)
boolean3.Type = "Cut"
boolean3.addObjects([body30])
doc.recompute()
body20.AllowCompound = True
doc.recompute()

body31 = doc.addObject("PartDesign::Body", "Body030")
body31.BaseFeature = body27
boolean4 = doc.addObject("PartDesign::Boolean", "Boolean003")
body20.addObject(boolean4)
boolean4.Type = "Cut"
boolean4.addObjects([body31])
doc.recompute()
body26.AllowCompound = True
doc.recompute()

boolean5 = doc.addObject("PartDesign::Boolean", "Boolean004")
body26.addObject(boolean5)
boolean5.Type = "Cut"
boolean5.addObjects([body27])

doc.recompute()
